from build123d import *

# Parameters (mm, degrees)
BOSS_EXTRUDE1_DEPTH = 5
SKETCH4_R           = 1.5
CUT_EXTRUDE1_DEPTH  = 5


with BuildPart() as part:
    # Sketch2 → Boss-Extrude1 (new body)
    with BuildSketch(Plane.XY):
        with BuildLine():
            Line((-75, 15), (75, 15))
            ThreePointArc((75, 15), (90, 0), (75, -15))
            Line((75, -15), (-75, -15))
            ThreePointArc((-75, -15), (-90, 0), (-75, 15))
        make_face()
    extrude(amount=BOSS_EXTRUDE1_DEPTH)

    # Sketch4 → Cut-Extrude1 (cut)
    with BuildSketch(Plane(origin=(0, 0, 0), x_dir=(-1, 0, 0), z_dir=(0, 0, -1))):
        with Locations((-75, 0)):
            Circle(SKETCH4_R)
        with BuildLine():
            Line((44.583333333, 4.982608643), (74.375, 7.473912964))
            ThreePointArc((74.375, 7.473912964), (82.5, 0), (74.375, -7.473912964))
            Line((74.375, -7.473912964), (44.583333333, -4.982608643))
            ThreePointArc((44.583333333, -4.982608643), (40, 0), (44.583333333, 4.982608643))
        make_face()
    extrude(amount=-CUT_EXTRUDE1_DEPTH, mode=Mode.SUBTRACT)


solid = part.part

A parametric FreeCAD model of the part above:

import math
import FreeCAD as App
import Part
import Sketcher
Q = App.Units.Quantity

doc = App.newDocument("Part")
body = doc.addObject("PartDesign::Body", "Body")

# Sketch on XY plane
sketch1 = body.newObject("Sketcher::SketchObject", "Sketch")
sketch1.AttachmentSupport = (doc.getObject("XY_Plane"), [""])
sketch1.MapMode = "FlatFace"
sketch1.addGeometry(Part.LineSegment(App.Vector(75, 15, 0), App.Vector(-75, 15, 0)), False)
sketch1.addGeometry(Part.ArcOfCircle(Part.Circle(App.Vector(-75, 0, 0), App.Vector(0, 0, 1), 15), math.radians(90), math.radians(270)), False)
sketch1.addGeometry(Part.LineSegment(App.Vector(-75, -15, 0), App.Vector(75, -15, 0)), False)
sketch1.addGeometry(Part.ArcOfCircle(Part.Circle(App.Vector(75, 0, 0), App.Vector(0, 0, 1), 15), math.radians(-90), math.radians(90)), False)
sketch1.addConstraint(Sketcher.Constraint("Tangent", 0, 2, 1, 1))
sketch1.addConstraint(Sketcher.Constraint("Tangent", 1, 2, 2, 1))
sketch1.addConstraint(Sketcher.Constraint("Tangent", 2, 2, 3, 1))
sketch1.addConstraint(Sketcher.Constraint("Tangent", 3, 2, 0, 1))
sketch1.addConstraint(Sketcher.Constraint("Horizontal", 0))
sketch1.addConstraint(Sketcher.Constraint("Horizontal", 2))
sketch1.addConstraint(Sketcher.Constraint("Symmetric", 1, 3, 3, 3, -1, 1))
sketch1.addConstraint(Sketcher.Constraint("Radius", 1, Q("15 mm")))
sketch1.addConstraint(Sketcher.Constraint("DistanceX", 0, 2, 0, 1, Q("150 mm")))
pad1 = body.newObject("PartDesign::Pad", "Pad")
pad1.Profile = sketch1
pad1.Length = 5

# Sketch on XY plane
sketch2 = body.newObject("Sketcher::SketchObject", "Sketch001")
sketch2.AttachmentSupport = (doc.getObject("XY_Plane"), [""])
sketch2.MapMode = "FlatFace"
sketch2.addGeometry(Part.Circle(App.Vector(75, 0, 0), App.Vector(0, 0, 1), 1.5), False)
sketch2.addGeometry(Part.LineSegment(App.Vector(-74.4, 7.5, 0), App.Vector(-44.6, 5, 0)), False)
sketch2.addGeometry(Part.ArcOfCircle(Part.Circle(App.Vector(-45, 0, 0), App.Vector(0, 0, 1), 5), math.radians(-85), math.radians(85)), False)
sketch2.addGeometry(Part.LineSegment(App.Vector(-44.6, -5, 0), App.Vector(-74.4, -7.5, 0)), False)
sketch2.addGeometry(Part.ArcOfCircle(Part.Circle(App.Vector(-75, 0, 0), App.Vector(0, 0, 1), 7.5), math.radians(85), math.radians(275)), False)
sketch2.addConstraint(Sketcher.Constraint("Tangent", 1, 2, 2, 2))
sketch2.addConstraint(Sketcher.Constraint("Tangent", 2, 1, 3, 1))
sketch2.addConstraint(Sketcher.Constraint("Tangent", 3, 2, 4, 2))
sketch2.addConstraint(Sketcher.Constraint("Tangent", 4, 1, 1, 1))
sketch2.addConstraint(Sketcher.Constraint("Symmetric", 0, 3, 4, 3, -1, 1))
sketch2.addConstraint(Sketcher.Constraint("Symmetric", 1, 2, 2, 1, -1))
sketch2.addConstraint(Sketcher.Constraint("Diameter", 0, Q("3 mm")))
sketch2.addConstraint(Sketcher.Constraint("Radius", 2, Q("5 mm")))
sketch2.addConstraint(Sketcher.Constraint("Radius", 4, Q("7.5 mm")))
sketch2.addConstraint(Sketcher.Constraint("DistanceX", -1, 1, 0, 3, Q("75 mm")))
sketch2.addConstraint(Sketcher.Constraint("DistanceX", 2, 3, -1, 1, Q("45 mm")))
pocket1 = body.newObject("PartDesign::Pocket", "Pocket")
pocket1.Profile = sketch2
pocket1.Length = 5
pocket1.Reversed = True

doc.recompute()
